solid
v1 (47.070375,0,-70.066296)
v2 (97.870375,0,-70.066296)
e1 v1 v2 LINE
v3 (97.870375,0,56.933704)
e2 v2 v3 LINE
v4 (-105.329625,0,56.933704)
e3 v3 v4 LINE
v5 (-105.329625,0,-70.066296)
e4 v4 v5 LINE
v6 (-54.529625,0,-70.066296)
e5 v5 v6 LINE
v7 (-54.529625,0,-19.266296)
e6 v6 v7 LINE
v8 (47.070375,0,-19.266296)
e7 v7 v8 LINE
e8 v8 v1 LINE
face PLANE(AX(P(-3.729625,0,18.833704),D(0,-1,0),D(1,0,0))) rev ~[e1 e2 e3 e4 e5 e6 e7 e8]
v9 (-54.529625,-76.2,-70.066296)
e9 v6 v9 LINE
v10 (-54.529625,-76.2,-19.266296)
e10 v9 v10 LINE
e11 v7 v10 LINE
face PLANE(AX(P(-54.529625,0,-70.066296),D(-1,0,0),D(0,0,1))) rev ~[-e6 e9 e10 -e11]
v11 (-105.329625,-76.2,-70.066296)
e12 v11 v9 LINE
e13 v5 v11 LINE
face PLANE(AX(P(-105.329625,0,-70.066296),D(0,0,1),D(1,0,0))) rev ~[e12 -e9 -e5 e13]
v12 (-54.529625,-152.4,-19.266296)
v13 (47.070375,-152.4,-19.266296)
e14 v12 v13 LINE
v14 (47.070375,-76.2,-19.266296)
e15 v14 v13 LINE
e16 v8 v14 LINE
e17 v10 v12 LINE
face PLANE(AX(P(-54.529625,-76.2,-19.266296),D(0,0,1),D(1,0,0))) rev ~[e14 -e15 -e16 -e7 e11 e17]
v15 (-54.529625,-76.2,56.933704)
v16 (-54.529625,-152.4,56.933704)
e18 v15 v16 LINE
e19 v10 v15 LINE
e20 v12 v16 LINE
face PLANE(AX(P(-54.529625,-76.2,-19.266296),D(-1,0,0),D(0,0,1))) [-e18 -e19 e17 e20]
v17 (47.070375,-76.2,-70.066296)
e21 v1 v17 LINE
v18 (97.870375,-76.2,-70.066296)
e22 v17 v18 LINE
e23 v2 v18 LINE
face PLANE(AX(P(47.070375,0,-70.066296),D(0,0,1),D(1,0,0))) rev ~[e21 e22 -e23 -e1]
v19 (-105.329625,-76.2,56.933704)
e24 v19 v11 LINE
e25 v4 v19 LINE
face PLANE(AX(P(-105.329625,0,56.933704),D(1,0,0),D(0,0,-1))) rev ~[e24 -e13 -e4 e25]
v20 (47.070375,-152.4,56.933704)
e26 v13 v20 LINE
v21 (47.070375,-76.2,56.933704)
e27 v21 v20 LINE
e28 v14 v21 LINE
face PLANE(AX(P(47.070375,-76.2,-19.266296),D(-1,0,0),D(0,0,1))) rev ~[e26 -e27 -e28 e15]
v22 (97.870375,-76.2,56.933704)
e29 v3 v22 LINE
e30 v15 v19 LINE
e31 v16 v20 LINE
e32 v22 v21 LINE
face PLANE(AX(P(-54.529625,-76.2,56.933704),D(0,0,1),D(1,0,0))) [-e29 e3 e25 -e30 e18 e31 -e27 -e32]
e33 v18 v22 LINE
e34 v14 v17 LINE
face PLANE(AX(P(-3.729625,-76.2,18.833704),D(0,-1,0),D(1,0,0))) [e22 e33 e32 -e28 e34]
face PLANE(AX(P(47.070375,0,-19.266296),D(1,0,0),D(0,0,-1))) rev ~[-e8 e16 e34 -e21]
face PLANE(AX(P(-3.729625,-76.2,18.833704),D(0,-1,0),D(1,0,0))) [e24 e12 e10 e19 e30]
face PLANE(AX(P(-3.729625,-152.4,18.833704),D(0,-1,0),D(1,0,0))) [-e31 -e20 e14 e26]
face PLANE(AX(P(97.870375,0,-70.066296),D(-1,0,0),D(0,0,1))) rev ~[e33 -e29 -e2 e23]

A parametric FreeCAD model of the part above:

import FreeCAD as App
import Part
import Sketcher
from FreeCAD import Vector
Q = App.Units.Quantity

doc = App.newDocument("Part")
body = doc.addObject("PartDesign::Body", "Body")

# Sketch on XZ plane
sketch1 = body.newObject("Sketcher::SketchObject", "Sketch")
sketch1.AttachmentSupport = (doc.getObject("XZ_Plane"), [""])
sketch1.MapMode = "FlatFace"
sketch1.addGeometry(Part.LineSegment(Vector(-55, -19, 0), Vector(47, -19, 0)), False)
sketch1.addGeometry(Part.LineSegment(Vector(47, -19, 0), Vector(47, -70, 0)), False)
sketch1.addGeometry(Part.LineSegment(Vector(47, -70, 0), Vector(98, -70, 0)), False)
sketch1.addGeometry(Part.LineSegment(Vector(98, -70, 0), Vector(98, 57, 0)), False)
sketch1.addGeometry(Part.LineSegment(Vector(98, 57, 0), Vector(-105, 57, 0)), False)
sketch1.addGeometry(Part.LineSegment(Vector(-105, 57, 0), Vector(-105, -70, 0)), False)
sketch1.addGeometry(Part.LineSegment(Vector(-105, -70, 0), Vector(-55, -70, 0)), False)
sketch1.addGeometry(Part.LineSegment(Vector(-55, -70, 0), Vector(-55, -19, 0)), False)
sketch1.addConstraint(Sketcher.Constraint("Coincident", 0, 2, 1, 1))
sketch1.addConstraint(Sketcher.Constraint("Coincident", 1, 2, 2, 1))
sketch1.addConstraint(Sketcher.Constraint("Coincident", 2, 2, 3, 1))
sketch1.addConstraint(Sketcher.Constraint("Coincident", 3, 2, 4, 1))
sketch1.addConstraint(Sketcher.Constraint("Coincident", 4, 2, 5, 1))
sketch1.addConstraint(Sketcher.Constraint("Coincident", 5, 2, 6, 1))
sketch1.addConstraint(Sketcher.Constraint("Coincident", 6, 2, 7, 1))
sketch1.addConstraint(Sketcher.Constraint("Coincident", 7, 2, 0, 1))
sketch1.addConstraint(Sketcher.Constraint("Horizontal", 0))
sketch1.addConstraint(Sketcher.Constraint("Vertical", 1))
sketch1.addConstraint(Sketcher.Constraint("Horizontal", 2))
sketch1.addConstraint(Sketcher.Constraint("Vertical", 3))
sketch1.addConstraint(Sketcher.Constraint("Horizontal", 4))
sketch1.addConstraint(Sketcher.Constraint("Vertical", 5))
sketch1.addConstraint(Sketcher.Constraint("Horizontal", 6))
sketch1.addConstraint(Sketcher.Constraint("Vertical", 7))
sketch1.addConstraint(Sketcher.Constraint("Horizontal", 2, 2, 5, 2))
sketch1.addConstraint(Sketcher.Constraint("Equal", 2, 6))
sketch1.addConstraint(Sketcher.Constraint("Equal", 6, 1))
sketch1.addConstraint(Sketcher.Constraint("DistanceX", 0, 1, 0, 2, Q("4 in")))
sketch1.addConstraint(Sketcher.Constraint("DistanceX", 2, 1, 2, 2, Q("2 in")))
sketch1.addConstraint(Sketcher.Constraint("DistanceY", 3, 1, 3, 2, Q("5 in")))
sketch1.addConstraint(Sketcher.Constraint("DistanceX", -1, 1, 0, 2, Q("47.070375 mm")))
sketch1.addConstraint(Sketcher.Constraint("DistanceY", 0, 2, -1, 1, Q("19.266296 mm")))
pad1 = body.newObject("PartDesign::Pad", "Pad")
pad1.Profile = sketch1
pad1.Length = Q("3 in")

# Sketch on XZ plane
sketch2 = body.newObject("Sketcher::SketchObject", "Sketch001")
sketch2.AttachmentSupport = (doc.getObject("XZ_Plane"), [""])
sketch2.MapMode = "FlatFace"
sketch2.AttachmentOffset = App.Placement(Vector(0, 0, 3 * 25.4), App.Rotation())
sketch2.addGeometry(Part.LineSegment(Vector(-55, 57, 0), Vector(-55, -19, 0)), False)
sketch2.addGeometry(Part.LineSegment(Vector(-55, -19, 0), Vector(47, -19, 0)), False)
sketch2.addGeometry(Part.LineSegment(Vector(47, -19, 0), Vector(47, 57, 0)), False)
sketch2.addGeometry(Part.LineSegment(Vector(47, 57, 0), Vector(-55, 57, 0)), False)
sketch2.addConstraint(Sketcher.Constraint("Coincident", 0, 2, 1, 1))
sketch2.addConstraint(Sketcher.Constraint("Coincident", 1, 2, 2, 1))
sketch2.addConstraint(Sketcher.Constraint("Coincident", 2, 2, 3, 1))
sketch2.addConstraint(Sketcher.Constraint("Coincident", 3, 2, 0, 1))
sketch2.addConstraint(Sketcher.Constraint("Vertical", 0))
sketch2.addConstraint(Sketcher.Constraint("Horizontal", 1))
sketch2.addConstraint(Sketcher.Constraint("Vertical", 2))
sketch2.addConstraint(Sketcher.Constraint("Horizontal", 3))
sketch2.addConstraint(Sketcher.Constraint("DistanceX", 1, 1, 1, 2, Q("4 in")))
sketch2.addConstraint(Sketcher.Constraint("DistanceY", 0, 2, 0, 1, Q("3 in")))
sketch2.addConstraint(Sketcher.Constraint("DistanceX", 0, 2, -1, 1, Q("54.529625 mm")))
sketch2.addConstraint(Sketcher.Constraint("DistanceY", 0, 2, -1, 1, Q("19.266296 mm")))
pad2 = body.newObject("PartDesign::Pad", "Pad001")
pad2.Profile = sketch2
pad2.Length = Q("3 in")

doc.recompute()
